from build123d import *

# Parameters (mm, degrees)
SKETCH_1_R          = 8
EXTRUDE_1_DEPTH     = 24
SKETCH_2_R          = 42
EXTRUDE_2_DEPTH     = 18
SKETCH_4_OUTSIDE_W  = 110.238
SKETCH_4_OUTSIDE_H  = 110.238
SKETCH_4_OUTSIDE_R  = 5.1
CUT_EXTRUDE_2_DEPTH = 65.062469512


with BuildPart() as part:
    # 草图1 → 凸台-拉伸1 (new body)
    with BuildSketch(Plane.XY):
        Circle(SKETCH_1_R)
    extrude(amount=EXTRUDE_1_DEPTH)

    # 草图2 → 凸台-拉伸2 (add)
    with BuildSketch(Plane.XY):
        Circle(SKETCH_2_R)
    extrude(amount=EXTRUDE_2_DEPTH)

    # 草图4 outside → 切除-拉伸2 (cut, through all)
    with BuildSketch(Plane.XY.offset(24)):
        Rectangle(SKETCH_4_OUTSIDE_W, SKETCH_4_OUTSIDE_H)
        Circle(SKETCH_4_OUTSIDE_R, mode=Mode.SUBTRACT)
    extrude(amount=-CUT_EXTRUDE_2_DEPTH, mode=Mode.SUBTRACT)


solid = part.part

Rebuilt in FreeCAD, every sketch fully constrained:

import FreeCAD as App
import Part
import Sketcher
from FreeCAD import Vector

doc = App.newDocument("Part")
body = doc.addObject("PartDesign::Body", "Body")

# Sketch on XY plane
sketch1 = doc.addObject("Sketcher::SketchObject", "Sketch")
body.addObject(sketch1)
sketch1.AttachmentSupport = (doc.XY_Plane, [""])
sketch1.MapMode = "FlatFace"
sketch1.addGeometry(Part.Circle(Vector(0, 0, 0), Vector(0, 0, 1), 8), False)
sketch1.addConstraint([
    Sketcher.Constraint("Coincident", 0, 3, -1, 1),
    Sketcher.Constraint("Diameter", 0, 16.0),
])
pad1 = doc.addObject("PartDesign::Pad", "Pad")
body.addObject(pad1)
pad1.Profile = sketch1
pad1.Length = 24

# Sketch on XY plane
sketch2 = doc.addObject("Sketcher::SketchObject", "Sketch001")
body.addObject(sketch2)
sketch2.AttachmentSupport = (doc.XY_Plane, [""])
sketch2.MapMode = "FlatFace"
sketch2.addGeometry(Part.Circle(Vector(0, 0, 0), Vector(0, 0, 1), 42), False)
sketch2.addConstraint([
    Sketcher.Constraint("Coincident", 0, 3, -1, 1),
    Sketcher.Constraint("Diameter", 0, 84.0),
])
pad2 = doc.addObject("PartDesign::Pad", "Pad001")
body.addObject(pad2)
pad2.Profile = sketch2
pad2.Length = 18

# Sketch on XY plane
sketch3 = doc.addObject("Sketcher::SketchObject", "Sketch002")
body.addObject(sketch3)
sketch3.AttachmentSupport = (doc.XY_Plane, [""])
sketch3.MapMode = "FlatFace"
sketch3.AttachmentOffset = App.Placement(Vector(0, 0, 24), App.Rotation())
sketch3.addGeometry([
    Part.LineSegment(Vector(-55.119, 55.119, 0), Vector(-55.119, -55.119, 0)),  # 0
    Part.LineSegment(Vector(-55.119, -55.119, 0), Vector(55.119, -55.119, 0)),  # 1
    Part.LineSegment(Vector(55.119, -55.119, 0), Vector(55.119, 55.119, 0)),  # 2
    Part.LineSegment(Vector(55.119, 55.119, 0), Vector(-55.119, 55.119, 0)),  # 3
    Part.Circle(Vector(0, 0, 0), Vector(0, 0, 1), 5.1),  # 4
], False)
sketch3.addConstraint([
    Sketcher.Constraint("Coincident", 0, 2, 1, 1),
    Sketcher.Constraint("Coincident", 1, 2, 2, 1),
    Sketcher.Constraint("Coincident", 2, 2, 3, 1),
    Sketcher.Constraint("Coincident", 3, 2, 0, 1),
    Sketcher.Constraint("Vertical", 0),
    Sketcher.Constraint("Horizontal", 1),
    Sketcher.Constraint("Vertical", 2),
    Sketcher.Constraint("Horizontal", 3),
    Sketcher.Constraint("Coincident", 4, 3, -1, 1),
    Sketcher.Constraint("Symmetric", 0, 2, 2, 2, -1, 1),
    Sketcher.Constraint("Equal", 3, 0),
    Sketcher.Constraint("Diameter", 4, 10.2),
    Sketcher.Constraint("DistanceX", 1, 1, 1, 2, 110.238),
])
pocket1 = doc.addObject("PartDesign::Pocket", "Pocket")
body.addObject(pocket1)
pocket1.Profile = sketch3
pocket1.Type = "ThroughAll"

doc.recompute()
